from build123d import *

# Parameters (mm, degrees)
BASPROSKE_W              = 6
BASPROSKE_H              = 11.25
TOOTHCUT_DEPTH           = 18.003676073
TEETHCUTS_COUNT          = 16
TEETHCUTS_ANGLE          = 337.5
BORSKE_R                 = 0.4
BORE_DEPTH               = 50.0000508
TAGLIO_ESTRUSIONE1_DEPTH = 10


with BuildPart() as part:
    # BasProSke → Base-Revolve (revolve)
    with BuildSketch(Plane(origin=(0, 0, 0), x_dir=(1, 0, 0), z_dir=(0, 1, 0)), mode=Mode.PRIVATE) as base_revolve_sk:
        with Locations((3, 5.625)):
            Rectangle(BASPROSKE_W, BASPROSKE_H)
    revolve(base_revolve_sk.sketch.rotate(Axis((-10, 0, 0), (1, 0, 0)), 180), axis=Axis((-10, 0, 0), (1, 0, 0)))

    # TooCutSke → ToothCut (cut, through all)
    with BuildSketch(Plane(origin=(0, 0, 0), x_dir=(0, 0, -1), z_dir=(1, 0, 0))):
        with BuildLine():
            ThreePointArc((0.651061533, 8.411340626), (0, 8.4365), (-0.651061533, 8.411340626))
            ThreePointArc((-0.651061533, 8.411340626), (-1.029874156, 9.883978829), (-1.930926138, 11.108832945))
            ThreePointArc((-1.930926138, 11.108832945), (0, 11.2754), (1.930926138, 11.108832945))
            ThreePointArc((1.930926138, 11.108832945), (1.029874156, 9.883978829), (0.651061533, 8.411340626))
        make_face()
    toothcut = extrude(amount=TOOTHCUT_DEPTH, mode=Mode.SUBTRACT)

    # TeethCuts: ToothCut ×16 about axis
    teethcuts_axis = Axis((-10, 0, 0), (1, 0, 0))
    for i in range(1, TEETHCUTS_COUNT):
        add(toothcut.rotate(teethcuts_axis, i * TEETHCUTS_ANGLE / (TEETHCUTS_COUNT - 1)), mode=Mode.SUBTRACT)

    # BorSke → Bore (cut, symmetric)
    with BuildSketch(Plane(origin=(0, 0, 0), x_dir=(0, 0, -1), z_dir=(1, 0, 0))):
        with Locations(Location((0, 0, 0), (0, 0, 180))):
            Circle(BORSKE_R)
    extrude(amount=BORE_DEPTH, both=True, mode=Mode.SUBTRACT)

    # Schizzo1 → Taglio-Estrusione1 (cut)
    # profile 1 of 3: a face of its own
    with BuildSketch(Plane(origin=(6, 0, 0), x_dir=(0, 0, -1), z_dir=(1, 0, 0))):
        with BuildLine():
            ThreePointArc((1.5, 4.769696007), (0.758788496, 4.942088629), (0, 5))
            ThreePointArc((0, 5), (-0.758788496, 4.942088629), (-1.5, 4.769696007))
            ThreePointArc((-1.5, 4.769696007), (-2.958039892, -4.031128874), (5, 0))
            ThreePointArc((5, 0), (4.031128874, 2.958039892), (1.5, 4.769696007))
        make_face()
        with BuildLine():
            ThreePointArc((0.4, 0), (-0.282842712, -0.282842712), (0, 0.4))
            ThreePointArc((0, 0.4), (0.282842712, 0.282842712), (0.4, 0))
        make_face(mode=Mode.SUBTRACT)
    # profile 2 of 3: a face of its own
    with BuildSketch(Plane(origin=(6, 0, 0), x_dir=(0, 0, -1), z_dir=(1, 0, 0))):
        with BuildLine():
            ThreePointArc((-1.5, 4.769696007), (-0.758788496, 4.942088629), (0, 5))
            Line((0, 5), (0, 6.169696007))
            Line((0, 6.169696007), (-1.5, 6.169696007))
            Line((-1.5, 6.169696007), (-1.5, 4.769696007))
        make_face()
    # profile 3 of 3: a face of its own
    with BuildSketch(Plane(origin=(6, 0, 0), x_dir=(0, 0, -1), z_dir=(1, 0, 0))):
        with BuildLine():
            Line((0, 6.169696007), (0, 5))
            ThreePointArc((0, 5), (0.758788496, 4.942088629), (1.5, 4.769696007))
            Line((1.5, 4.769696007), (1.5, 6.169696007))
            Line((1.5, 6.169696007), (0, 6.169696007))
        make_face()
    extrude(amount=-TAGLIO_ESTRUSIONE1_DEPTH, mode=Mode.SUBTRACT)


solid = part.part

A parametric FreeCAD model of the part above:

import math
import FreeCAD as App
import Part
import Sketcher

V = App.Vector


def add_polygon(sketch, points):
    """Adds a closed chain of lines whose ends are joined by coincident constraints."""
    first, n = sketch.GeometryCount, len(points)
    for a, b in zip(points, points[1:] + points[:1]):
        sketch.addGeometry(Part.LineSegment(App.Vector(*a, 0), App.Vector(*b, 0)), False)
    for i in range(n):
        sketch.addConstraint(Sketcher.Constraint("Coincident", first + i, 2, first + (i + 1) % n, 1))

doc = App.newDocument("Part")
params = doc.addObject("Spreadsheet::Sheet", "Params")
for row, (alias, value) in enumerate([
    ("sketch1_width", "6 mm"),
    ("sketch1_height", "11.25 mm"),
    ("revolution_angle", "360 deg"),
    ("sketch2_radius", "4 mm"),
    ("sketch3_diameter", "0.8 mm"),
    ("pocket2_length", "100.000102 mm"),
    ("sketch4_radius", "5 mm"),
    ("sketch4_radius2", "0.4 mm"),
    ("sketch4_height", "3 mm"),
    ("sketch4_width", "1.4 mm"),
    ("pocket3_length", "10 mm"),
], start=1):
    params.set(f"A{row}", alias)
    params.set(f"B{row}", "=" + value)
    params.setAlias(f"B{row}", alias)

body = doc.addObject("PartDesign::Body", "Body")

# Sketch on XZ plane
sketch1 = body.newObject("Sketcher::SketchObject", "Sketch")
sketch1.AttachmentSupport = (doc.getObject("XZ_Plane"), [""])
sketch1.MapMode = "FlatFace"
add_polygon(sketch1, [(0, -11.25), (0, 0), (6, 0), (6, -11.25)])  # lines 0-3
sketch1.addConstraint([
    Sketcher.Constraint("Vertical", 0),
    Sketcher.Constraint("Horizontal", 1),
    Sketcher.Constraint("Vertical", 2),
    Sketcher.Constraint("Horizontal", 3),
    Sketcher.Constraint("Coincident", 0, 2, -1, 1),
    Sketcher.Constraint("DistanceX", 1, 1, 1, 2, 6.0),
    Sketcher.Constraint("DistanceY", 0, 1, 0, 2, 11.25),
])
sketch1.setExpression("Constraints[9]", "Params.sketch1_width")
sketch1.setExpression("Constraints[10]", "Params.sketch1_height")
revolution = body.newObject("PartDesign::Revolution", "Revolution")
revolution.Profile = sketch1
revolution.ReferenceAxis = (sketch1, ["H_Axis"])
revolution.setExpression("Angle", "Params.revolution_angle")

# Sketch on YZ plane
sketch2 = body.newObject("Sketcher::SketchObject", "Sketch001")
sketch2.AttachmentSupport = (doc.getObject("YZ_Plane"), [""])
sketch2.MapMode = "FlatFace"
sketch2.addGeometry([
    Part.ArcOfCircle(Part.Circle(V(0, 0, 0), V(0, 0, 1), 8.4365), math.radians(-4.42603), math.radians(4.42603)),
    Part.ArcOfCircle(Part.Circle(V(8.16933, -4.643734, 0), V(0, 0, 1), 4), math.radians(42.703292), math.radians(86.531341)),
    Part.ArcOfCircle(Part.Circle(V(0, 0, 0), V(0, 0, 1), 11.2754), math.radians(-9.860576), math.radians(9.860576)),
    Part.ArcOfCircle(Part.Circle(V(8.16933, 4.643734, 0), V(0, 0, 1), 4), math.radians(-86.531341), math.radians(-42.703292)),
], False)
sketch2.addConstraint([
    Sketcher.Constraint("Coincident", 0, 1, 1, 2),
    Sketcher.Constraint("Coincident", 1, 1, 2, 1),
    Sketcher.Constraint("Coincident", 2, 2, 3, 2),
    Sketcher.Constraint("Coincident", 3, 1, 0, 2),
    Sketcher.Constraint("Coincident", 0, 3, -1, 1),
    Sketcher.Constraint("Coincident", 2, 3, -1, 1),
    Sketcher.Constraint("Equal", 1, 3),
    Sketcher.Constraint("Symmetric", 1, 3, 3, 3, -1),
    Sketcher.Constraint("Radius", 1, 4.0),
    Sketcher.Constraint("Radius", 0, 8.4365),
    Sketcher.Constraint("Radius", 2, 11.2754),
    Sketcher.Constraint("DistanceX", -1, 1, 1, 3, 8.16933),
    Sketcher.Constraint("DistanceX", -1, 1, 0, 1, 8.411341),
])
sketch2.setExpression("Constraints[8]", "Params.sketch2_radius")
pocket1 = body.newObject("PartDesign::Pocket", "Pocket")
pocket1.Profile = sketch2
pocket1.Type = "ThroughAll"
pocket1.Reversed = True
doc.recompute()

polarpattern = body.newObject("PartDesign::PolarPattern", "PolarPattern")
polarpattern.Originals = [pocket1]
polarpattern.Axis = (doc.getObject("X_Axis"), [""])
polarpattern.Angle = 360
polarpattern.Occurrences = 16
body.Tip = polarpattern

# Sketch on YZ plane
sketch3 = body.newObject("Sketcher::SketchObject", "Sketch002")
sketch3.AttachmentSupport = (doc.getObject("YZ_Plane"), [""])
sketch3.MapMode = "FlatFace"
sketch3.addGeometry(Part.Circle(V(0, 0, 0), V(0, 0, 1), 0.4), False)
sketch3.addConstraint([
    Sketcher.Constraint("Coincident", 0, 3, -1, 1),
    Sketcher.Constraint("Diameter", 0, 0.8),
])
sketch3.setExpression("Constraints[1]", "Params.sketch3_diameter")
pocket2 = body.newObject("PartDesign::Pocket", "Pocket001")
pocket2.Profile = sketch3
pocket2.setExpression("Length", "Params.pocket2_length")
pocket2.Midplane = True

# Sketch on YZ plane
sketch4 = body.newObject("Sketcher::SketchObject", "Sketch003")
sketch4.AttachmentSupport = (doc.getObject("YZ_Plane"), [""])
sketch4.MapMode = "FlatFace"
sketch4.AttachmentOffset = App.Placement(V(0, 0, 6), App.Rotation())
sketch4.addGeometry([
    Part.ArcOfCircle(Part.Circle(V(0, 0, 0), V(0, 0, 1), 5), math.radians(-90), math.radians(-17.457603)),  # 0
    Part.LineSegment(V(4.769696, -1.5, 0), V(6.169696, -1.5, 0)),  # 1
    Part.LineSegment(V(6.169696, -1.5, 0), V(6.169696, 1.5, 0)),  # 2
    Part.LineSegment(V(6.169696, 1.5, 0), V(4.769696, 1.5, 0)),  # 3
    Part.ArcOfCircle(Part.Circle(V(0, 0, 0), V(0, 0, 1), 5), math.radians(17.457603), math.radians(270)),  # 4
    Part.ArcOfCircle(Part.Circle(V(0, 0, 0), V(0, 0, 1), 0.4), math.radians(-90), math.radians(0)),  # 5
    Part.ArcOfCircle(Part.Circle(V(0, 0, 0), V(0, 0, 1), 0.4), math.radians(0), math.radians(270)),  # 6
], False)
sketch4.addConstraint([
    Sketcher.Constraint("Coincident", 0, 2, 1, 1),
    Sketcher.Constraint("Coincident", 1, 2, 2, 1),
    Sketcher.Constraint("Coincident", 2, 2, 3, 1),
    Sketcher.Constraint("Coincident", 3, 2, 4, 1),
    Sketcher.Constraint("Tangent", 4, 2, 0, 1),
    Sketcher.Constraint("Tangent", 5, 1, 6, 2),
    Sketcher.Constraint("Coincident", 6, 1, 5, 2),
    Sketcher.Constraint("Horizontal", 1),
    Sketcher.Constraint("Vertical", 2),
    Sketcher.Constraint("Horizontal", 3),
    Sketcher.Constraint("Coincident", 0, 3, -1, 1),
    Sketcher.Constraint("Coincident", 5, 3, -1, 1),
    Sketcher.Constraint("Equal", 0, 4),
    Sketcher.Constraint("PointOnObject", 4, 2, -2),
    Sketcher.Constraint("PointOnObject", 5, 1, -2),
    Sketcher.Constraint("PointOnObject", 6, 1, -1),
    Sketcher.Constraint("Vertical", 0, 2, 3, 2),
    Sketcher.Constraint("Radius", 0, 5.0),
    Sketcher.Constraint("Radius", 5, 0.4),
    Sketcher.Constraint("DistanceY", 2, 1, 2, 2, 3.0),
    Sketcher.Constraint("DistanceX", 1, 1, 1, 2, 1.4),
])
sketch4.setExpression("Constraints[17]", "Params.sketch4_radius")
sketch4.setExpression("Constraints[18]", "Params.sketch4_radius2")
sketch4.setExpression("Constraints[19]", "Params.sketch4_height")
sketch4.setExpression("Constraints[20]", "Params.sketch4_width")
pocket3 = body.newObject("PartDesign::Pocket", "Pocket002")
pocket3.Profile = sketch4
pocket3.setExpression("Length", "Params.pocket3_length")

doc.recompute()
